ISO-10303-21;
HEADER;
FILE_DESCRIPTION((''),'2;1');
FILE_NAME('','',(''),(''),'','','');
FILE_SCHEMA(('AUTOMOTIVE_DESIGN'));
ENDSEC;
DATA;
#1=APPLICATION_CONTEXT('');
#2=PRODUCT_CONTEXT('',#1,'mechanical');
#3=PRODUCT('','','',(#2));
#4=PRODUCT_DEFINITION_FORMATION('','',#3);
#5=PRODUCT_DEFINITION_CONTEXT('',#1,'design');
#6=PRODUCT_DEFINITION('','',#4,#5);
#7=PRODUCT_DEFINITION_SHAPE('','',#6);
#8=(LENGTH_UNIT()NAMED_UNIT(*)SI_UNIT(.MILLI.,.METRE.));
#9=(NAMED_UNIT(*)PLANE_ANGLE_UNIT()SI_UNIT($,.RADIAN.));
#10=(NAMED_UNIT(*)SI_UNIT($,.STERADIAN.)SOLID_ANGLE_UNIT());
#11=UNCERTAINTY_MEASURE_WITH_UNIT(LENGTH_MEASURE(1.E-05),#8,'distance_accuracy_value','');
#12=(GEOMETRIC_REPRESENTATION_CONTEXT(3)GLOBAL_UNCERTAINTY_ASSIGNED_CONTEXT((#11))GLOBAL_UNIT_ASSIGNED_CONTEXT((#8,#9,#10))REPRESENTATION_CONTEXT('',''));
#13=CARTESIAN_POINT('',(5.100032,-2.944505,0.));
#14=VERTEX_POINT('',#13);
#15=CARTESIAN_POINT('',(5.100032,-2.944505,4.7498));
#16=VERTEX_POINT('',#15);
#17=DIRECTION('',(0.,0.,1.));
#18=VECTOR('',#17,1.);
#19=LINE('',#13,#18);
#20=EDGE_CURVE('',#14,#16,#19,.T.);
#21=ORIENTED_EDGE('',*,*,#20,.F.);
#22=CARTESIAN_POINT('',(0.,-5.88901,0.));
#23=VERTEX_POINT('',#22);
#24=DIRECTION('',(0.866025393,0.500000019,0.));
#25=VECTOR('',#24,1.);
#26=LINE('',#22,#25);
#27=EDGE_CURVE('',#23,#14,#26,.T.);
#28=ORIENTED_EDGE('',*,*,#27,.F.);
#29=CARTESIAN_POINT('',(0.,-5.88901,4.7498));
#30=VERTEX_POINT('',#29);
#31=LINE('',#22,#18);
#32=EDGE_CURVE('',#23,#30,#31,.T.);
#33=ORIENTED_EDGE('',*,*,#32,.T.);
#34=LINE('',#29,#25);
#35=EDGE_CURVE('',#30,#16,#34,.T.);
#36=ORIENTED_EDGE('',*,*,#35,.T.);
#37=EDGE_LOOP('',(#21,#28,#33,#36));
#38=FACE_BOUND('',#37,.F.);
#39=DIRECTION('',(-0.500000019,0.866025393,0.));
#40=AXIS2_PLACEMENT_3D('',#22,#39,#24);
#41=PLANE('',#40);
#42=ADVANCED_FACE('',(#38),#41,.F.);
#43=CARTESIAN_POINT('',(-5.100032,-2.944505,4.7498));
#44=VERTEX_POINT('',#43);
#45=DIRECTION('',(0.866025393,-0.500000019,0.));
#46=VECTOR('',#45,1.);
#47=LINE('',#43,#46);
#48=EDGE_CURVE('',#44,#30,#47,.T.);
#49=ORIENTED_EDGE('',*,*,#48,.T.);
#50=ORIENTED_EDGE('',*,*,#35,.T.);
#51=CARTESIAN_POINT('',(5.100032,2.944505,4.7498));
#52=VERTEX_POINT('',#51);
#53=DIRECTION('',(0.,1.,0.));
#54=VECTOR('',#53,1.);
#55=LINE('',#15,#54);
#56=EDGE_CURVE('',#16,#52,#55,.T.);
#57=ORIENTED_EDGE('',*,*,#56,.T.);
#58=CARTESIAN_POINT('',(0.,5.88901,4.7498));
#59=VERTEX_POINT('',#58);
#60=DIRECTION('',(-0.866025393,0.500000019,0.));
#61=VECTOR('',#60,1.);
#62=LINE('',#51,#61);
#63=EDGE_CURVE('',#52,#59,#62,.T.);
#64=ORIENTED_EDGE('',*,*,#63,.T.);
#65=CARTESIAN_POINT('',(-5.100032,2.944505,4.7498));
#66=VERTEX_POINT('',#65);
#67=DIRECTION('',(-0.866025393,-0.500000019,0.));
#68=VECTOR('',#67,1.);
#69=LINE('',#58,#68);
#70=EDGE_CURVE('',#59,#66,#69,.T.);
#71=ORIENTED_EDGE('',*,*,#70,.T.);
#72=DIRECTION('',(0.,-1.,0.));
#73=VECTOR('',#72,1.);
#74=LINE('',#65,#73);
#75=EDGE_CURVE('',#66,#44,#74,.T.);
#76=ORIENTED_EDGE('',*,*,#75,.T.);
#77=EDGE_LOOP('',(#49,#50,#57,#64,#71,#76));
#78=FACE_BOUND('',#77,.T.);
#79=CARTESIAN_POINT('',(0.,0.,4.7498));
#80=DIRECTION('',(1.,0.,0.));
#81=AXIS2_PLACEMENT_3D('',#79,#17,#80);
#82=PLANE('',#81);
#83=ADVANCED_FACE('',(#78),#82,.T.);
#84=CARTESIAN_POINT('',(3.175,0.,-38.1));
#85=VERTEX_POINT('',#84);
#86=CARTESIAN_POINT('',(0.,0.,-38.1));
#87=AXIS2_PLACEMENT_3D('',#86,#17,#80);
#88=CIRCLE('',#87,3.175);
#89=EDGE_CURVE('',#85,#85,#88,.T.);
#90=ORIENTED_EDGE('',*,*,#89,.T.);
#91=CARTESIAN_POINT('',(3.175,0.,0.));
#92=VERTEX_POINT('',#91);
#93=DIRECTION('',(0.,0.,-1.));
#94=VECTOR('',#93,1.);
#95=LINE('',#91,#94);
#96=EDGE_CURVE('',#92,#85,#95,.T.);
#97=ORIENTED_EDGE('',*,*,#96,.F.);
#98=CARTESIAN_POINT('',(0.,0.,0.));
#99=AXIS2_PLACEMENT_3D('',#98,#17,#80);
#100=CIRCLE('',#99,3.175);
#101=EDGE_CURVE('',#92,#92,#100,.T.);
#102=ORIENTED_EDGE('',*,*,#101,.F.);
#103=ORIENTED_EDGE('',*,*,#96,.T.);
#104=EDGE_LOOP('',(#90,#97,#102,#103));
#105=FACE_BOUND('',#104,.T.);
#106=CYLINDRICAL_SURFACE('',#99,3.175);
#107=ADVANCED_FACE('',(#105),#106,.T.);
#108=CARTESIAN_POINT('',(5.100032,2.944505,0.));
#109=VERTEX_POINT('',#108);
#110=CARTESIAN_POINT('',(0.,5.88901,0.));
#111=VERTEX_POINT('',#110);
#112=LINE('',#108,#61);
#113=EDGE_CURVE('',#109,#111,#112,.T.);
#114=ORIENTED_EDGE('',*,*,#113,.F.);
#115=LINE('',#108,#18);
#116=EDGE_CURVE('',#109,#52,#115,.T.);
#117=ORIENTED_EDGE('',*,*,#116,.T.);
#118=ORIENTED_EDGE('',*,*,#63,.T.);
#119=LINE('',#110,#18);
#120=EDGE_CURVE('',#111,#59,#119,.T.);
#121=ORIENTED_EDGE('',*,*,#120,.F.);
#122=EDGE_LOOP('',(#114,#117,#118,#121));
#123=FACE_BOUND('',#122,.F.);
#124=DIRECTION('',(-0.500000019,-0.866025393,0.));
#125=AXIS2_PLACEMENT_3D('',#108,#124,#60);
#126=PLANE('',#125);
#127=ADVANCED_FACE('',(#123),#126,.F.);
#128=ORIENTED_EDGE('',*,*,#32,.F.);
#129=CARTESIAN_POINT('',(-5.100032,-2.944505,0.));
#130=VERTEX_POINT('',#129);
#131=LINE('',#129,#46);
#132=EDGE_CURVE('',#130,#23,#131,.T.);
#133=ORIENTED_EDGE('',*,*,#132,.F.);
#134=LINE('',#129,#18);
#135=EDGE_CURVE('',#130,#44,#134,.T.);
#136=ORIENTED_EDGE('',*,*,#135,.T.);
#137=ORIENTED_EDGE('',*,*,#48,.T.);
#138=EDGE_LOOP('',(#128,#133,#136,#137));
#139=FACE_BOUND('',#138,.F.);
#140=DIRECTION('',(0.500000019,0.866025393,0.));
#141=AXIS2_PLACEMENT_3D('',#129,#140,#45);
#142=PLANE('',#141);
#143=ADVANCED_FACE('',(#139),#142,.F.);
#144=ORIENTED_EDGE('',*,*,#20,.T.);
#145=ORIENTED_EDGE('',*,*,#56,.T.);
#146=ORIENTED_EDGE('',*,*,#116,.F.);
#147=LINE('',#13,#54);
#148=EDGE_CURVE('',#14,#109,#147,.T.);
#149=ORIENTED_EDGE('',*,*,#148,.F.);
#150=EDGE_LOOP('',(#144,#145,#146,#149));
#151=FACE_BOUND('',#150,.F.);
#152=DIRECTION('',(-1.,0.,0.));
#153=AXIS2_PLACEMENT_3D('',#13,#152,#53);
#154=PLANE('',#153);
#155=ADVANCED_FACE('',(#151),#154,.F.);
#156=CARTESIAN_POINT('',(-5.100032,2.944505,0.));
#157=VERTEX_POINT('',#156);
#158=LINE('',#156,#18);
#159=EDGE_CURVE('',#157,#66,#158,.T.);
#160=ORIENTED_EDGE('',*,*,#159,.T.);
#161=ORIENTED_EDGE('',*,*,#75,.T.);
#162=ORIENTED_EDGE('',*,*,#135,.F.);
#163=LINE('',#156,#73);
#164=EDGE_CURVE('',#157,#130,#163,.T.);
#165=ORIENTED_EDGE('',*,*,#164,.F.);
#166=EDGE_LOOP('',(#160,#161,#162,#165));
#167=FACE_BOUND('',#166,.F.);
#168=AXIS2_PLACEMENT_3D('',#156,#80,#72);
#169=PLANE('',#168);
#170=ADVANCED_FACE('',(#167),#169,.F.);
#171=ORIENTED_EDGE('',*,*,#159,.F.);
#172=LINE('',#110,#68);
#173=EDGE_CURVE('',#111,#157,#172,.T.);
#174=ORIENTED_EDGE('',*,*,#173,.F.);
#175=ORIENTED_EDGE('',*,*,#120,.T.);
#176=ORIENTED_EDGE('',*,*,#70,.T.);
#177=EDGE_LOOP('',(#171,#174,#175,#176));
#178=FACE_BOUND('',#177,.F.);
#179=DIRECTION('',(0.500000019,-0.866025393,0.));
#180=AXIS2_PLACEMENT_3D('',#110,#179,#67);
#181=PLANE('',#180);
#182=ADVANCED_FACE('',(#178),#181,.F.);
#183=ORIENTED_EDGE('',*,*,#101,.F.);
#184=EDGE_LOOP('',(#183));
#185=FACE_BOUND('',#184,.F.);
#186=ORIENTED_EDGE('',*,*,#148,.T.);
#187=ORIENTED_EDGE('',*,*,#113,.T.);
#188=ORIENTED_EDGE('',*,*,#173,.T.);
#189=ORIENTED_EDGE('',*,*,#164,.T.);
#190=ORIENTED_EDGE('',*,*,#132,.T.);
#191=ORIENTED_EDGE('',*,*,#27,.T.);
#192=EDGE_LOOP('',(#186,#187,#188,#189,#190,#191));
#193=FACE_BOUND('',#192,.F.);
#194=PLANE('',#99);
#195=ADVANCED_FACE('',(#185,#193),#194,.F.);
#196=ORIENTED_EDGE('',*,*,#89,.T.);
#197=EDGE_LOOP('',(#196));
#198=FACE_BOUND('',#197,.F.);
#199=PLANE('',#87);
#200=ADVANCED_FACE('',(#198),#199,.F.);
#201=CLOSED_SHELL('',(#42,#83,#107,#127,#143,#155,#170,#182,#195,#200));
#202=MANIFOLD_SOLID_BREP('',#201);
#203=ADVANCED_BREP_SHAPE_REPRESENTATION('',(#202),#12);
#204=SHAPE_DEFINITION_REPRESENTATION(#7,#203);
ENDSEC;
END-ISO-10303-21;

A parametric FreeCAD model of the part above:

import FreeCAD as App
import Part
import Sketcher
from FreeCAD import Vector
Q = App.Units.Quantity

doc = App.newDocument("Part")
body = doc.addObject("PartDesign::Body", "Body")

# Sketch on XY plane
sketch1 = body.newObject("Sketcher::SketchObject", "Sketch")
sketch1.AttachmentSupport = (doc.getObject("XY_Plane"), [""])
sketch1.MapMode = "FlatFace"
sketch1.addGeometry(Part.Circle(Vector(0, 0, 0), Vector(0, 0, 1), 3.2), False)
sketch1.addConstraint([
    Sketcher.Constraint("Coincident", 0, 3, -1, 1),
    Sketcher.Constraint("Diameter", 0, Q("0.25 in")),
])
pad1 = body.newObject("PartDesign::Pad", "Pad")
pad1.Profile = sketch1
pad1.Length = Q("1.5 in")
pad1.Reversed = True

# Sketch on XY plane
sketch2 = body.newObject("Sketcher::SketchObject", "Sketch001")
sketch2.AttachmentSupport = (doc.getObject("XY_Plane"), [""])
sketch2.MapMode = "FlatFace"
sketch2.addGeometry([
    Part.LineSegment(Vector(5, 3, 0), Vector(0, 6, 0)),  # 0
    Part.LineSegment(Vector(0, 6, 0), Vector(-5, 3, 0)),  # 1
    Part.LineSegment(Vector(-5, 3, 0), Vector(-5, -3, 0)),  # 2
    Part.LineSegment(Vector(-5, -3, 0), Vector(0, -6, 0)),  # 3
    Part.LineSegment(Vector(0, -6, 0), Vector(5, -3, 0)),  # 4
    Part.LineSegment(Vector(5, -3, 0), Vector(5, 3, 0)),  # 5
], False)
sketch2.addConstraint([
    Sketcher.Constraint("Coincident", 0, 2, 1, 1),
    Sketcher.Constraint("Coincident", 1, 2, 2, 1),
    Sketcher.Constraint("Coincident", 2, 2, 3, 1),
    Sketcher.Constraint("Coincident", 3, 2, 4, 1),
    Sketcher.Constraint("Coincident", 4, 2, 5, 1),
    Sketcher.Constraint("Coincident", 5, 2, 0, 1),
    Sketcher.Constraint("Vertical", 2),
    Sketcher.Constraint("Vertical", 5),
    Sketcher.Constraint("Symmetric", 0, 2, 3, 2, -1, 1),
    Sketcher.Constraint("Symmetric", 1, 2, 4, 2, -1, 1),
    Sketcher.Constraint("PointOnObject", 0, 2, -2),
    Sketcher.Constraint("Parallel", 0, 3),
    Sketcher.Constraint("Horizontal", 2, 2, 4, 2),
    Sketcher.Constraint("Angle", 0, Q("149.999999 deg")),
    Sketcher.Constraint("DistanceY", 2, 2, 2, 1, 5.88901),
    Sketcher.Constraint("Distance", 0, 5.88901),
])
pad2 = body.newObject("PartDesign::Pad", "Pad001")
pad2.Profile = sketch2
pad2.Length = Q("0.187 in")

doc.recompute()
